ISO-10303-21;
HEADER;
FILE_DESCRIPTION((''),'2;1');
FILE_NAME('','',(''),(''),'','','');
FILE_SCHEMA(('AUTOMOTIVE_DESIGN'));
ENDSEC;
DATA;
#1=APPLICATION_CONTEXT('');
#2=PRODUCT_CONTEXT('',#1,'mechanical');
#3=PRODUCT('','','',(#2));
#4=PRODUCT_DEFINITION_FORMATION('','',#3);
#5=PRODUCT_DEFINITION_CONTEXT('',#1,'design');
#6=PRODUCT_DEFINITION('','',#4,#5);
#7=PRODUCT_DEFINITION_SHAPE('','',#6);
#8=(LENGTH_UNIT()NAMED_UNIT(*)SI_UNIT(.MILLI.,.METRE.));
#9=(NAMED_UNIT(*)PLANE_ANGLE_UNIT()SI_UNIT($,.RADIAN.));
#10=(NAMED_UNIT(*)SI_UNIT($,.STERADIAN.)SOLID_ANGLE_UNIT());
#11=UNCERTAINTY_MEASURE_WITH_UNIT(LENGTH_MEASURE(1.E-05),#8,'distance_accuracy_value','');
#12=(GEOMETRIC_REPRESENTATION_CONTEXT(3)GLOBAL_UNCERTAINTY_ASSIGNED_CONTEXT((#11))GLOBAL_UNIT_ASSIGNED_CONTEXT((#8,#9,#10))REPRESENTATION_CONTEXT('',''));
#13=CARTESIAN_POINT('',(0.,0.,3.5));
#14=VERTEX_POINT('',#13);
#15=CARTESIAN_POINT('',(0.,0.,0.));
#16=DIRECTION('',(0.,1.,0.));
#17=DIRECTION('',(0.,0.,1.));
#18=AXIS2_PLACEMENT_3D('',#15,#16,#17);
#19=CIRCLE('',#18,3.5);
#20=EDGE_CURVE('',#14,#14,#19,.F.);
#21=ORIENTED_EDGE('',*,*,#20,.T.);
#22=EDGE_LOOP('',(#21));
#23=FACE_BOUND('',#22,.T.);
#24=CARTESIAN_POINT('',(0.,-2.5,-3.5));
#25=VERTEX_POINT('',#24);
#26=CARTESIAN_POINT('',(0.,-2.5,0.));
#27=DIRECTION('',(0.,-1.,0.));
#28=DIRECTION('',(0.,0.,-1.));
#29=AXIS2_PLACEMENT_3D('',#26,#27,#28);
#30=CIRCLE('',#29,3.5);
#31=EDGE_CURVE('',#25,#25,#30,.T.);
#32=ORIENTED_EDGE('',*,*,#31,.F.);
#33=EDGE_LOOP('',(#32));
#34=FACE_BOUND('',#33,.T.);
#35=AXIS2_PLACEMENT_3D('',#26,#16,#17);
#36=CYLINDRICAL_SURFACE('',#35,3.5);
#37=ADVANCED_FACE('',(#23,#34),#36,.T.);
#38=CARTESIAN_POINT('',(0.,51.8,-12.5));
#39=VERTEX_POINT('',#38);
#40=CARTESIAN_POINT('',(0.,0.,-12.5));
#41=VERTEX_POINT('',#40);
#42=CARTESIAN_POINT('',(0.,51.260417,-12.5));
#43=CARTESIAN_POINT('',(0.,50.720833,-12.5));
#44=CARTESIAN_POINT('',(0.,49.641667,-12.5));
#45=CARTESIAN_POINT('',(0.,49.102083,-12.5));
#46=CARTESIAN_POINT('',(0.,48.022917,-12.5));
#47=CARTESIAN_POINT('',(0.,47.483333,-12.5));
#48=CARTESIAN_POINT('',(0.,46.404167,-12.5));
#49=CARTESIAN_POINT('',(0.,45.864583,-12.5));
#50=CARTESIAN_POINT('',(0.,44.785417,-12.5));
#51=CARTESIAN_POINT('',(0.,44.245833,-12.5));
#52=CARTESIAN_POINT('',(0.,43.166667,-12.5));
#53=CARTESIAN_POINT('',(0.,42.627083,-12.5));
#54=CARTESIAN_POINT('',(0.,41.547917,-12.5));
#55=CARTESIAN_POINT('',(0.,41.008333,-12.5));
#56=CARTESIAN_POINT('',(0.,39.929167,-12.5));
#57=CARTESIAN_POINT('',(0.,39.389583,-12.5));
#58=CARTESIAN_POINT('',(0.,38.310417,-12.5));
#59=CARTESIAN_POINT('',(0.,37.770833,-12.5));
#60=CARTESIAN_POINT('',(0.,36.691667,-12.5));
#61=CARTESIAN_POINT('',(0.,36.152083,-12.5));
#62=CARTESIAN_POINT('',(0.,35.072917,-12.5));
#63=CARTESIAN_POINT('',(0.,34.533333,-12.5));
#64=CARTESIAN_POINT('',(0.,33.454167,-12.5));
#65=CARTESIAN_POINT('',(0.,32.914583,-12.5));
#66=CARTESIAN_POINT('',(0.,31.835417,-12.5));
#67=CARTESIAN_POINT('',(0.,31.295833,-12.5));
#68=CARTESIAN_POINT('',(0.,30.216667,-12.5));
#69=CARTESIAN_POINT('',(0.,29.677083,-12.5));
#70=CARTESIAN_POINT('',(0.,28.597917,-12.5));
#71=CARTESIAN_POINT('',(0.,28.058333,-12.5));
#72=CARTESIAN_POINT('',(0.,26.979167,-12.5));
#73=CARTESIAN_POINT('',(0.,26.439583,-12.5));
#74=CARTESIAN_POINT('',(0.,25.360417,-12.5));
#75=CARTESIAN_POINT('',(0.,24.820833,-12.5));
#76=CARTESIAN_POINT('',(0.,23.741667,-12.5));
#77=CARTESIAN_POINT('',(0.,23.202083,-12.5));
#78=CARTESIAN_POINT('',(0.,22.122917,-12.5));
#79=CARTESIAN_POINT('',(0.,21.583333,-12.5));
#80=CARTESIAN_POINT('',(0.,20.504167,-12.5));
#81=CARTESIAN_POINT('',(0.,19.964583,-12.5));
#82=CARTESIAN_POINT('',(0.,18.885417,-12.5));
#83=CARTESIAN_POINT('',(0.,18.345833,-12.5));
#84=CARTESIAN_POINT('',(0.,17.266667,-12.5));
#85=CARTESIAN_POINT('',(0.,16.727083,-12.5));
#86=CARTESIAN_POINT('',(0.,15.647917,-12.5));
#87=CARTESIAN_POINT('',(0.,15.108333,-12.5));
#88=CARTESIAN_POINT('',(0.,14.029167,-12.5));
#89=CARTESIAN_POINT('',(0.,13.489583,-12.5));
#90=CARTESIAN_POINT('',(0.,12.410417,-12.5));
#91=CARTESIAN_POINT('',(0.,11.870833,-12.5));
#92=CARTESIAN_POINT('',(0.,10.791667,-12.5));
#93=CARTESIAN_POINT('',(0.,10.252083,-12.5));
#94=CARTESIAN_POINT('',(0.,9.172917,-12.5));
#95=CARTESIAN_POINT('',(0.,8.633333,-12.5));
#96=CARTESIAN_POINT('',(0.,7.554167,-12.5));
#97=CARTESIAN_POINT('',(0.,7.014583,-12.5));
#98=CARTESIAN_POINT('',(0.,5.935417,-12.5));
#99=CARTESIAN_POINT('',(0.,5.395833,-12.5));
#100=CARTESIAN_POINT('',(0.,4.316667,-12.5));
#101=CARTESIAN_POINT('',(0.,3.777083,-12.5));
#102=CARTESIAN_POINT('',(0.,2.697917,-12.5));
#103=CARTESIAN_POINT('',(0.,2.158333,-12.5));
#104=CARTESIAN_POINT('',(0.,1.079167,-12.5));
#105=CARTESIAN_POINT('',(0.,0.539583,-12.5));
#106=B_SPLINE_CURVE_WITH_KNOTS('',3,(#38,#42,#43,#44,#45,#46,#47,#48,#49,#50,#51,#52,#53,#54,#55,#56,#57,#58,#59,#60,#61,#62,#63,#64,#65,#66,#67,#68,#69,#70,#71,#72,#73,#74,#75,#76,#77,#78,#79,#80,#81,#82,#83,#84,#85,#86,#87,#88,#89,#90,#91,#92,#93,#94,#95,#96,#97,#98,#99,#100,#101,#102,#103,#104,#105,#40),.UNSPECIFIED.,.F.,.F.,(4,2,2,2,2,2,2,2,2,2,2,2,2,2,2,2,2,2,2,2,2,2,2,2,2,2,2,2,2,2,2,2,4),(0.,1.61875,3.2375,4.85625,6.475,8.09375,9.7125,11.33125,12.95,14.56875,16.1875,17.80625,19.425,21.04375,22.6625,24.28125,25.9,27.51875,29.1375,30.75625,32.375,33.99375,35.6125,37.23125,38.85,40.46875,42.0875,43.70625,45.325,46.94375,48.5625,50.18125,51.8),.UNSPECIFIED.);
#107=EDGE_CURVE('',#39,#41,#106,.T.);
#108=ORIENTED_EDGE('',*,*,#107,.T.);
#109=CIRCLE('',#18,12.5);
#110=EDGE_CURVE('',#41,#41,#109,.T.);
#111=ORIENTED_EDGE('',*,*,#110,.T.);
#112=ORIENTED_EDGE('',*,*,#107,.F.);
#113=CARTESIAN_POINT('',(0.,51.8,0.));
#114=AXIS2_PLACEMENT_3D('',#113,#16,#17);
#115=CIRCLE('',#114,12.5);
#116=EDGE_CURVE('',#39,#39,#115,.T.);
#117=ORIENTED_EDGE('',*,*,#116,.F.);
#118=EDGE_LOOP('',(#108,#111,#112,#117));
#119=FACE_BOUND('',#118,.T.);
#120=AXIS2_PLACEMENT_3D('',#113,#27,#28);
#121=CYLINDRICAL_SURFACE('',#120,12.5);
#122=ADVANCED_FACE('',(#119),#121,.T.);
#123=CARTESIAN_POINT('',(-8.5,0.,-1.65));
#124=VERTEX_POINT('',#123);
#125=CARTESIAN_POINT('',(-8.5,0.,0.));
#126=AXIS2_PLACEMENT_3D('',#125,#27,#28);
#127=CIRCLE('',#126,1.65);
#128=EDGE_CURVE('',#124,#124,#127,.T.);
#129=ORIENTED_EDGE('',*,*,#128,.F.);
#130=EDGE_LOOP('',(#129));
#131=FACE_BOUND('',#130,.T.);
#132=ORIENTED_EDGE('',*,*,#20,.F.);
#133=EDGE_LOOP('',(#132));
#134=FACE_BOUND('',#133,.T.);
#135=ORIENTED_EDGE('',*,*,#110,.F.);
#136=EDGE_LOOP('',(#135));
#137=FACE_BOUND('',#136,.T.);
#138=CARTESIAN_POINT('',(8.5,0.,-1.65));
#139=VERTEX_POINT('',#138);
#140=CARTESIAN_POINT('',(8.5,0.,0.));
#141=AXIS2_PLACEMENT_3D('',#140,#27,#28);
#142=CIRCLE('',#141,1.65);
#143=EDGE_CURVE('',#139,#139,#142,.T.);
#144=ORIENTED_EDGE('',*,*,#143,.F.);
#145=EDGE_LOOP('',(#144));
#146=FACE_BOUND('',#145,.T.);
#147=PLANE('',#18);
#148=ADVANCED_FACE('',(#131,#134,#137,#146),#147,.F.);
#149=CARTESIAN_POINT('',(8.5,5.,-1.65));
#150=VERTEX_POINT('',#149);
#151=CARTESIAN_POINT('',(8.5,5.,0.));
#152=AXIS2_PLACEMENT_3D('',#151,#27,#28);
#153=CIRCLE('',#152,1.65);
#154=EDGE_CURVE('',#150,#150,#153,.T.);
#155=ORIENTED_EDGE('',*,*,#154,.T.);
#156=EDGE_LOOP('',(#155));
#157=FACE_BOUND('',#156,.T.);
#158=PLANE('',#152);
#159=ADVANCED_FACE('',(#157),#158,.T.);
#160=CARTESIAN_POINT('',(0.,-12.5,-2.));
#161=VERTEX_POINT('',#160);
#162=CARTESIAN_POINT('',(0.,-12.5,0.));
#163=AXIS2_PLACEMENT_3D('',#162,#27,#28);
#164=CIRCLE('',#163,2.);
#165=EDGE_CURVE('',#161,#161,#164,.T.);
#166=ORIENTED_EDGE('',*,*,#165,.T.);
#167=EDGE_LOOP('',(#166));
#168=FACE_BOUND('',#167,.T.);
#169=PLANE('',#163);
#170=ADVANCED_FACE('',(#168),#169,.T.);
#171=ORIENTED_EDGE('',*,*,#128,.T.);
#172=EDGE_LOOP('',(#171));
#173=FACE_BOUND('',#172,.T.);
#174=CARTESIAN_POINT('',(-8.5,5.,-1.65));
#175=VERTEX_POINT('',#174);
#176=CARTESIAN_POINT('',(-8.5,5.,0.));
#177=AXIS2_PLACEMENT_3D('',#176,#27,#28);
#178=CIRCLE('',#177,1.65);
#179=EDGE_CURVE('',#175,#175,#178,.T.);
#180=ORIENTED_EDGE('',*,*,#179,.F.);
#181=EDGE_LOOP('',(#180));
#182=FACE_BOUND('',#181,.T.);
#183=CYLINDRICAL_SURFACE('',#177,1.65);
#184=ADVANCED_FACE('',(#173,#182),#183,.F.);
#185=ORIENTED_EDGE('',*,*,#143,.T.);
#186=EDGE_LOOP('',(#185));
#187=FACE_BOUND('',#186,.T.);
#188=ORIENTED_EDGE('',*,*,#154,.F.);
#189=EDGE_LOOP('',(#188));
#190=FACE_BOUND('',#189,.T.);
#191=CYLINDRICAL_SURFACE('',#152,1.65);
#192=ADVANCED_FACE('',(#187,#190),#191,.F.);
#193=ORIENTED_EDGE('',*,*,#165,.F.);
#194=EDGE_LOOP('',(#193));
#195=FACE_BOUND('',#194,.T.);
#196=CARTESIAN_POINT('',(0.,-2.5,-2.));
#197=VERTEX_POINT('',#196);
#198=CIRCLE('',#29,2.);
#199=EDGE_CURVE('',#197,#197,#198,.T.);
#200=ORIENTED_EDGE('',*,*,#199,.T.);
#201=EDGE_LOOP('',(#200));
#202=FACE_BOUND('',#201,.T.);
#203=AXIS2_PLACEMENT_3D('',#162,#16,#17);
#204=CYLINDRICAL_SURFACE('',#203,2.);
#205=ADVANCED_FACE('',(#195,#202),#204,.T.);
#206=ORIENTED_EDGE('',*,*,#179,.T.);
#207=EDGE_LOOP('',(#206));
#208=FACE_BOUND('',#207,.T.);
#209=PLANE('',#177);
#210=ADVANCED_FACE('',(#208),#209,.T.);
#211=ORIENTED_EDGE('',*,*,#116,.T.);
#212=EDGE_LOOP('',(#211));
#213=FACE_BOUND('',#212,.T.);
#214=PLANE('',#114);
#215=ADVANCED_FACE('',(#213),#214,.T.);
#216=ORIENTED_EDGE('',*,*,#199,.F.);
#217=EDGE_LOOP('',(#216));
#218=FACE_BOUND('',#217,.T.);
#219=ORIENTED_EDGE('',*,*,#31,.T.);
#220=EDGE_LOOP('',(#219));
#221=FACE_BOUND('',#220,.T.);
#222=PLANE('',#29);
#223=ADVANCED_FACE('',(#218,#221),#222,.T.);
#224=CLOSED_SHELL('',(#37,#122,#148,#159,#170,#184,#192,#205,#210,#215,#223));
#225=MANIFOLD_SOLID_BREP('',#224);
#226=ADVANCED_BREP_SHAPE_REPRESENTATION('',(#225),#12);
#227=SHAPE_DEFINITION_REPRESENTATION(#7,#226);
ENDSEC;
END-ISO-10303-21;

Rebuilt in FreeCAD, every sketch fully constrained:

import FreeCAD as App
import Part
import Sketcher
from FreeCAD import Vector
Q = App.Units.Quantity

doc = App.newDocument("Part")
params = doc.addObject("Spreadsheet::Sheet", "Params")
for row, (alias, value) in enumerate([
    ("sketch1_diameter", "25 mm"),
    ("pad1_length", "51.8 mm"),
    ("sketch2_diameter", "7 mm"),
    ("pad2_length", "2.5 mm"),
    ("sketch3_diameter", "4 mm"),
    ("pad3_length", "10 mm"),
    ("sketch4_diameter", "3.3 mm"),
    ("pocket1_length", "5 mm"),
], start=1):
    params.set(f"A{row}", alias)
    params.set(f"B{row}", "=" + value)
    params.setAlias(f"B{row}", alias)

body = doc.addObject("PartDesign::Body", "Body")

sketch1 = body.newObject("Sketcher::SketchObject", "Sketch")
sketch1.AttachmentSupport = (doc.getObject("XZ_Plane"), [""])
sketch1.MapMode = "FlatFace"
sketch1.addGeometry(Part.Circle(Vector(0, 0, 0), Vector(0, 0, 1), 12), False)
sketch1.addConstraint(Sketcher.Constraint("Coincident", 0, 3, -1, 1))
sketch1.addConstraint(Sketcher.Constraint("Diameter", 0, Q("25 mm")))
sketch1.setExpression("Constraints[1]", "Params.sketch1_diameter")
pad1 = body.newObject("PartDesign::Pad", "Pad")
pad1.Profile = sketch1
pad1.setExpression("Length", "Params.pad1_length")
pad1.Reversed = True

sketch2 = body.newObject("Sketcher::SketchObject", "Sketch001")
sketch2.AttachmentSupport = (doc.getObject("XZ_Plane"), [""])
sketch2.MapMode = "FlatFace"
sketch2.addGeometry(Part.Circle(Vector(0, 0, 0), Vector(0, 0, 1), 3.5), False)
sketch2.addConstraint(Sketcher.Constraint("Coincident", 0, 3, -1, 1))
sketch2.addConstraint(Sketcher.Constraint("Diameter", 0, Q("7 mm")))
sketch2.setExpression("Constraints[1]", "Params.sketch2_diameter")
pad2 = body.newObject("PartDesign::Pad", "Pad001")
pad2.Profile = sketch2
pad2.setExpression("Length", "Params.pad2_length")

sketch3 = body.newObject("Sketcher::SketchObject", "Sketch002")
sketch3.AttachmentSupport = (doc.getObject("XZ_Plane"), [""])
sketch3.MapMode = "FlatFace"
sketch3.AttachmentOffset = App.Placement(Vector(0, 0, 2.5), App.Rotation())
sketch3.addGeometry(Part.Circle(Vector(0, 0, 0), Vector(0, 0, 1), 2), False)
sketch3.addConstraint(Sketcher.Constraint("Coincident", 0, 3, -1, 1))
sketch3.addConstraint(Sketcher.Constraint("Diameter", 0, Q("4 mm")))
sketch3.setExpression("Constraints[1]", "Params.sketch3_diameter")
pad3 = body.newObject("PartDesign::Pad", "Pad002")
pad3.Profile = sketch3
pad3.setExpression("Length", "Params.pad3_length")

sketch4 = body.newObject("Sketcher::SketchObject", "Sketch003")
sketch4.AttachmentSupport = (doc.getObject("XZ_Plane"), [""])
sketch4.MapMode = "FlatFace"
sketch4.addGeometry(Part.Circle(Vector(-8.5, 0, 0), Vector(0, 0, 1), 1.6), False)
sketch4.addGeometry(Part.Circle(Vector(8.5, 0, 0), Vector(0, 0, 1), 1.6), False)
sketch4.addConstraint(Sketcher.Constraint("Equal", 0, 1))
sketch4.addConstraint(Sketcher.Constraint("Symmetric", 0, 3, 1, 3, -1, 1))
sketch4.addConstraint(Sketcher.Constraint("PointOnObject", 0, 3, -1))
sketch4.addConstraint(Sketcher.Constraint("Diameter", 0, Q("3.3 mm")))
sketch4.addConstraint(Sketcher.Constraint("DistanceX", 0, 3, 1, 3, Q("17 mm")))
sketch4.setExpression("Constraints[3]", "Params.sketch4_diameter")
pocket1 = body.newObject("PartDesign::Pocket", "Pocket")
pocket1.Profile = sketch4
pocket1.setExpression("Length", "Params.pocket1_length")

doc.recompute()
